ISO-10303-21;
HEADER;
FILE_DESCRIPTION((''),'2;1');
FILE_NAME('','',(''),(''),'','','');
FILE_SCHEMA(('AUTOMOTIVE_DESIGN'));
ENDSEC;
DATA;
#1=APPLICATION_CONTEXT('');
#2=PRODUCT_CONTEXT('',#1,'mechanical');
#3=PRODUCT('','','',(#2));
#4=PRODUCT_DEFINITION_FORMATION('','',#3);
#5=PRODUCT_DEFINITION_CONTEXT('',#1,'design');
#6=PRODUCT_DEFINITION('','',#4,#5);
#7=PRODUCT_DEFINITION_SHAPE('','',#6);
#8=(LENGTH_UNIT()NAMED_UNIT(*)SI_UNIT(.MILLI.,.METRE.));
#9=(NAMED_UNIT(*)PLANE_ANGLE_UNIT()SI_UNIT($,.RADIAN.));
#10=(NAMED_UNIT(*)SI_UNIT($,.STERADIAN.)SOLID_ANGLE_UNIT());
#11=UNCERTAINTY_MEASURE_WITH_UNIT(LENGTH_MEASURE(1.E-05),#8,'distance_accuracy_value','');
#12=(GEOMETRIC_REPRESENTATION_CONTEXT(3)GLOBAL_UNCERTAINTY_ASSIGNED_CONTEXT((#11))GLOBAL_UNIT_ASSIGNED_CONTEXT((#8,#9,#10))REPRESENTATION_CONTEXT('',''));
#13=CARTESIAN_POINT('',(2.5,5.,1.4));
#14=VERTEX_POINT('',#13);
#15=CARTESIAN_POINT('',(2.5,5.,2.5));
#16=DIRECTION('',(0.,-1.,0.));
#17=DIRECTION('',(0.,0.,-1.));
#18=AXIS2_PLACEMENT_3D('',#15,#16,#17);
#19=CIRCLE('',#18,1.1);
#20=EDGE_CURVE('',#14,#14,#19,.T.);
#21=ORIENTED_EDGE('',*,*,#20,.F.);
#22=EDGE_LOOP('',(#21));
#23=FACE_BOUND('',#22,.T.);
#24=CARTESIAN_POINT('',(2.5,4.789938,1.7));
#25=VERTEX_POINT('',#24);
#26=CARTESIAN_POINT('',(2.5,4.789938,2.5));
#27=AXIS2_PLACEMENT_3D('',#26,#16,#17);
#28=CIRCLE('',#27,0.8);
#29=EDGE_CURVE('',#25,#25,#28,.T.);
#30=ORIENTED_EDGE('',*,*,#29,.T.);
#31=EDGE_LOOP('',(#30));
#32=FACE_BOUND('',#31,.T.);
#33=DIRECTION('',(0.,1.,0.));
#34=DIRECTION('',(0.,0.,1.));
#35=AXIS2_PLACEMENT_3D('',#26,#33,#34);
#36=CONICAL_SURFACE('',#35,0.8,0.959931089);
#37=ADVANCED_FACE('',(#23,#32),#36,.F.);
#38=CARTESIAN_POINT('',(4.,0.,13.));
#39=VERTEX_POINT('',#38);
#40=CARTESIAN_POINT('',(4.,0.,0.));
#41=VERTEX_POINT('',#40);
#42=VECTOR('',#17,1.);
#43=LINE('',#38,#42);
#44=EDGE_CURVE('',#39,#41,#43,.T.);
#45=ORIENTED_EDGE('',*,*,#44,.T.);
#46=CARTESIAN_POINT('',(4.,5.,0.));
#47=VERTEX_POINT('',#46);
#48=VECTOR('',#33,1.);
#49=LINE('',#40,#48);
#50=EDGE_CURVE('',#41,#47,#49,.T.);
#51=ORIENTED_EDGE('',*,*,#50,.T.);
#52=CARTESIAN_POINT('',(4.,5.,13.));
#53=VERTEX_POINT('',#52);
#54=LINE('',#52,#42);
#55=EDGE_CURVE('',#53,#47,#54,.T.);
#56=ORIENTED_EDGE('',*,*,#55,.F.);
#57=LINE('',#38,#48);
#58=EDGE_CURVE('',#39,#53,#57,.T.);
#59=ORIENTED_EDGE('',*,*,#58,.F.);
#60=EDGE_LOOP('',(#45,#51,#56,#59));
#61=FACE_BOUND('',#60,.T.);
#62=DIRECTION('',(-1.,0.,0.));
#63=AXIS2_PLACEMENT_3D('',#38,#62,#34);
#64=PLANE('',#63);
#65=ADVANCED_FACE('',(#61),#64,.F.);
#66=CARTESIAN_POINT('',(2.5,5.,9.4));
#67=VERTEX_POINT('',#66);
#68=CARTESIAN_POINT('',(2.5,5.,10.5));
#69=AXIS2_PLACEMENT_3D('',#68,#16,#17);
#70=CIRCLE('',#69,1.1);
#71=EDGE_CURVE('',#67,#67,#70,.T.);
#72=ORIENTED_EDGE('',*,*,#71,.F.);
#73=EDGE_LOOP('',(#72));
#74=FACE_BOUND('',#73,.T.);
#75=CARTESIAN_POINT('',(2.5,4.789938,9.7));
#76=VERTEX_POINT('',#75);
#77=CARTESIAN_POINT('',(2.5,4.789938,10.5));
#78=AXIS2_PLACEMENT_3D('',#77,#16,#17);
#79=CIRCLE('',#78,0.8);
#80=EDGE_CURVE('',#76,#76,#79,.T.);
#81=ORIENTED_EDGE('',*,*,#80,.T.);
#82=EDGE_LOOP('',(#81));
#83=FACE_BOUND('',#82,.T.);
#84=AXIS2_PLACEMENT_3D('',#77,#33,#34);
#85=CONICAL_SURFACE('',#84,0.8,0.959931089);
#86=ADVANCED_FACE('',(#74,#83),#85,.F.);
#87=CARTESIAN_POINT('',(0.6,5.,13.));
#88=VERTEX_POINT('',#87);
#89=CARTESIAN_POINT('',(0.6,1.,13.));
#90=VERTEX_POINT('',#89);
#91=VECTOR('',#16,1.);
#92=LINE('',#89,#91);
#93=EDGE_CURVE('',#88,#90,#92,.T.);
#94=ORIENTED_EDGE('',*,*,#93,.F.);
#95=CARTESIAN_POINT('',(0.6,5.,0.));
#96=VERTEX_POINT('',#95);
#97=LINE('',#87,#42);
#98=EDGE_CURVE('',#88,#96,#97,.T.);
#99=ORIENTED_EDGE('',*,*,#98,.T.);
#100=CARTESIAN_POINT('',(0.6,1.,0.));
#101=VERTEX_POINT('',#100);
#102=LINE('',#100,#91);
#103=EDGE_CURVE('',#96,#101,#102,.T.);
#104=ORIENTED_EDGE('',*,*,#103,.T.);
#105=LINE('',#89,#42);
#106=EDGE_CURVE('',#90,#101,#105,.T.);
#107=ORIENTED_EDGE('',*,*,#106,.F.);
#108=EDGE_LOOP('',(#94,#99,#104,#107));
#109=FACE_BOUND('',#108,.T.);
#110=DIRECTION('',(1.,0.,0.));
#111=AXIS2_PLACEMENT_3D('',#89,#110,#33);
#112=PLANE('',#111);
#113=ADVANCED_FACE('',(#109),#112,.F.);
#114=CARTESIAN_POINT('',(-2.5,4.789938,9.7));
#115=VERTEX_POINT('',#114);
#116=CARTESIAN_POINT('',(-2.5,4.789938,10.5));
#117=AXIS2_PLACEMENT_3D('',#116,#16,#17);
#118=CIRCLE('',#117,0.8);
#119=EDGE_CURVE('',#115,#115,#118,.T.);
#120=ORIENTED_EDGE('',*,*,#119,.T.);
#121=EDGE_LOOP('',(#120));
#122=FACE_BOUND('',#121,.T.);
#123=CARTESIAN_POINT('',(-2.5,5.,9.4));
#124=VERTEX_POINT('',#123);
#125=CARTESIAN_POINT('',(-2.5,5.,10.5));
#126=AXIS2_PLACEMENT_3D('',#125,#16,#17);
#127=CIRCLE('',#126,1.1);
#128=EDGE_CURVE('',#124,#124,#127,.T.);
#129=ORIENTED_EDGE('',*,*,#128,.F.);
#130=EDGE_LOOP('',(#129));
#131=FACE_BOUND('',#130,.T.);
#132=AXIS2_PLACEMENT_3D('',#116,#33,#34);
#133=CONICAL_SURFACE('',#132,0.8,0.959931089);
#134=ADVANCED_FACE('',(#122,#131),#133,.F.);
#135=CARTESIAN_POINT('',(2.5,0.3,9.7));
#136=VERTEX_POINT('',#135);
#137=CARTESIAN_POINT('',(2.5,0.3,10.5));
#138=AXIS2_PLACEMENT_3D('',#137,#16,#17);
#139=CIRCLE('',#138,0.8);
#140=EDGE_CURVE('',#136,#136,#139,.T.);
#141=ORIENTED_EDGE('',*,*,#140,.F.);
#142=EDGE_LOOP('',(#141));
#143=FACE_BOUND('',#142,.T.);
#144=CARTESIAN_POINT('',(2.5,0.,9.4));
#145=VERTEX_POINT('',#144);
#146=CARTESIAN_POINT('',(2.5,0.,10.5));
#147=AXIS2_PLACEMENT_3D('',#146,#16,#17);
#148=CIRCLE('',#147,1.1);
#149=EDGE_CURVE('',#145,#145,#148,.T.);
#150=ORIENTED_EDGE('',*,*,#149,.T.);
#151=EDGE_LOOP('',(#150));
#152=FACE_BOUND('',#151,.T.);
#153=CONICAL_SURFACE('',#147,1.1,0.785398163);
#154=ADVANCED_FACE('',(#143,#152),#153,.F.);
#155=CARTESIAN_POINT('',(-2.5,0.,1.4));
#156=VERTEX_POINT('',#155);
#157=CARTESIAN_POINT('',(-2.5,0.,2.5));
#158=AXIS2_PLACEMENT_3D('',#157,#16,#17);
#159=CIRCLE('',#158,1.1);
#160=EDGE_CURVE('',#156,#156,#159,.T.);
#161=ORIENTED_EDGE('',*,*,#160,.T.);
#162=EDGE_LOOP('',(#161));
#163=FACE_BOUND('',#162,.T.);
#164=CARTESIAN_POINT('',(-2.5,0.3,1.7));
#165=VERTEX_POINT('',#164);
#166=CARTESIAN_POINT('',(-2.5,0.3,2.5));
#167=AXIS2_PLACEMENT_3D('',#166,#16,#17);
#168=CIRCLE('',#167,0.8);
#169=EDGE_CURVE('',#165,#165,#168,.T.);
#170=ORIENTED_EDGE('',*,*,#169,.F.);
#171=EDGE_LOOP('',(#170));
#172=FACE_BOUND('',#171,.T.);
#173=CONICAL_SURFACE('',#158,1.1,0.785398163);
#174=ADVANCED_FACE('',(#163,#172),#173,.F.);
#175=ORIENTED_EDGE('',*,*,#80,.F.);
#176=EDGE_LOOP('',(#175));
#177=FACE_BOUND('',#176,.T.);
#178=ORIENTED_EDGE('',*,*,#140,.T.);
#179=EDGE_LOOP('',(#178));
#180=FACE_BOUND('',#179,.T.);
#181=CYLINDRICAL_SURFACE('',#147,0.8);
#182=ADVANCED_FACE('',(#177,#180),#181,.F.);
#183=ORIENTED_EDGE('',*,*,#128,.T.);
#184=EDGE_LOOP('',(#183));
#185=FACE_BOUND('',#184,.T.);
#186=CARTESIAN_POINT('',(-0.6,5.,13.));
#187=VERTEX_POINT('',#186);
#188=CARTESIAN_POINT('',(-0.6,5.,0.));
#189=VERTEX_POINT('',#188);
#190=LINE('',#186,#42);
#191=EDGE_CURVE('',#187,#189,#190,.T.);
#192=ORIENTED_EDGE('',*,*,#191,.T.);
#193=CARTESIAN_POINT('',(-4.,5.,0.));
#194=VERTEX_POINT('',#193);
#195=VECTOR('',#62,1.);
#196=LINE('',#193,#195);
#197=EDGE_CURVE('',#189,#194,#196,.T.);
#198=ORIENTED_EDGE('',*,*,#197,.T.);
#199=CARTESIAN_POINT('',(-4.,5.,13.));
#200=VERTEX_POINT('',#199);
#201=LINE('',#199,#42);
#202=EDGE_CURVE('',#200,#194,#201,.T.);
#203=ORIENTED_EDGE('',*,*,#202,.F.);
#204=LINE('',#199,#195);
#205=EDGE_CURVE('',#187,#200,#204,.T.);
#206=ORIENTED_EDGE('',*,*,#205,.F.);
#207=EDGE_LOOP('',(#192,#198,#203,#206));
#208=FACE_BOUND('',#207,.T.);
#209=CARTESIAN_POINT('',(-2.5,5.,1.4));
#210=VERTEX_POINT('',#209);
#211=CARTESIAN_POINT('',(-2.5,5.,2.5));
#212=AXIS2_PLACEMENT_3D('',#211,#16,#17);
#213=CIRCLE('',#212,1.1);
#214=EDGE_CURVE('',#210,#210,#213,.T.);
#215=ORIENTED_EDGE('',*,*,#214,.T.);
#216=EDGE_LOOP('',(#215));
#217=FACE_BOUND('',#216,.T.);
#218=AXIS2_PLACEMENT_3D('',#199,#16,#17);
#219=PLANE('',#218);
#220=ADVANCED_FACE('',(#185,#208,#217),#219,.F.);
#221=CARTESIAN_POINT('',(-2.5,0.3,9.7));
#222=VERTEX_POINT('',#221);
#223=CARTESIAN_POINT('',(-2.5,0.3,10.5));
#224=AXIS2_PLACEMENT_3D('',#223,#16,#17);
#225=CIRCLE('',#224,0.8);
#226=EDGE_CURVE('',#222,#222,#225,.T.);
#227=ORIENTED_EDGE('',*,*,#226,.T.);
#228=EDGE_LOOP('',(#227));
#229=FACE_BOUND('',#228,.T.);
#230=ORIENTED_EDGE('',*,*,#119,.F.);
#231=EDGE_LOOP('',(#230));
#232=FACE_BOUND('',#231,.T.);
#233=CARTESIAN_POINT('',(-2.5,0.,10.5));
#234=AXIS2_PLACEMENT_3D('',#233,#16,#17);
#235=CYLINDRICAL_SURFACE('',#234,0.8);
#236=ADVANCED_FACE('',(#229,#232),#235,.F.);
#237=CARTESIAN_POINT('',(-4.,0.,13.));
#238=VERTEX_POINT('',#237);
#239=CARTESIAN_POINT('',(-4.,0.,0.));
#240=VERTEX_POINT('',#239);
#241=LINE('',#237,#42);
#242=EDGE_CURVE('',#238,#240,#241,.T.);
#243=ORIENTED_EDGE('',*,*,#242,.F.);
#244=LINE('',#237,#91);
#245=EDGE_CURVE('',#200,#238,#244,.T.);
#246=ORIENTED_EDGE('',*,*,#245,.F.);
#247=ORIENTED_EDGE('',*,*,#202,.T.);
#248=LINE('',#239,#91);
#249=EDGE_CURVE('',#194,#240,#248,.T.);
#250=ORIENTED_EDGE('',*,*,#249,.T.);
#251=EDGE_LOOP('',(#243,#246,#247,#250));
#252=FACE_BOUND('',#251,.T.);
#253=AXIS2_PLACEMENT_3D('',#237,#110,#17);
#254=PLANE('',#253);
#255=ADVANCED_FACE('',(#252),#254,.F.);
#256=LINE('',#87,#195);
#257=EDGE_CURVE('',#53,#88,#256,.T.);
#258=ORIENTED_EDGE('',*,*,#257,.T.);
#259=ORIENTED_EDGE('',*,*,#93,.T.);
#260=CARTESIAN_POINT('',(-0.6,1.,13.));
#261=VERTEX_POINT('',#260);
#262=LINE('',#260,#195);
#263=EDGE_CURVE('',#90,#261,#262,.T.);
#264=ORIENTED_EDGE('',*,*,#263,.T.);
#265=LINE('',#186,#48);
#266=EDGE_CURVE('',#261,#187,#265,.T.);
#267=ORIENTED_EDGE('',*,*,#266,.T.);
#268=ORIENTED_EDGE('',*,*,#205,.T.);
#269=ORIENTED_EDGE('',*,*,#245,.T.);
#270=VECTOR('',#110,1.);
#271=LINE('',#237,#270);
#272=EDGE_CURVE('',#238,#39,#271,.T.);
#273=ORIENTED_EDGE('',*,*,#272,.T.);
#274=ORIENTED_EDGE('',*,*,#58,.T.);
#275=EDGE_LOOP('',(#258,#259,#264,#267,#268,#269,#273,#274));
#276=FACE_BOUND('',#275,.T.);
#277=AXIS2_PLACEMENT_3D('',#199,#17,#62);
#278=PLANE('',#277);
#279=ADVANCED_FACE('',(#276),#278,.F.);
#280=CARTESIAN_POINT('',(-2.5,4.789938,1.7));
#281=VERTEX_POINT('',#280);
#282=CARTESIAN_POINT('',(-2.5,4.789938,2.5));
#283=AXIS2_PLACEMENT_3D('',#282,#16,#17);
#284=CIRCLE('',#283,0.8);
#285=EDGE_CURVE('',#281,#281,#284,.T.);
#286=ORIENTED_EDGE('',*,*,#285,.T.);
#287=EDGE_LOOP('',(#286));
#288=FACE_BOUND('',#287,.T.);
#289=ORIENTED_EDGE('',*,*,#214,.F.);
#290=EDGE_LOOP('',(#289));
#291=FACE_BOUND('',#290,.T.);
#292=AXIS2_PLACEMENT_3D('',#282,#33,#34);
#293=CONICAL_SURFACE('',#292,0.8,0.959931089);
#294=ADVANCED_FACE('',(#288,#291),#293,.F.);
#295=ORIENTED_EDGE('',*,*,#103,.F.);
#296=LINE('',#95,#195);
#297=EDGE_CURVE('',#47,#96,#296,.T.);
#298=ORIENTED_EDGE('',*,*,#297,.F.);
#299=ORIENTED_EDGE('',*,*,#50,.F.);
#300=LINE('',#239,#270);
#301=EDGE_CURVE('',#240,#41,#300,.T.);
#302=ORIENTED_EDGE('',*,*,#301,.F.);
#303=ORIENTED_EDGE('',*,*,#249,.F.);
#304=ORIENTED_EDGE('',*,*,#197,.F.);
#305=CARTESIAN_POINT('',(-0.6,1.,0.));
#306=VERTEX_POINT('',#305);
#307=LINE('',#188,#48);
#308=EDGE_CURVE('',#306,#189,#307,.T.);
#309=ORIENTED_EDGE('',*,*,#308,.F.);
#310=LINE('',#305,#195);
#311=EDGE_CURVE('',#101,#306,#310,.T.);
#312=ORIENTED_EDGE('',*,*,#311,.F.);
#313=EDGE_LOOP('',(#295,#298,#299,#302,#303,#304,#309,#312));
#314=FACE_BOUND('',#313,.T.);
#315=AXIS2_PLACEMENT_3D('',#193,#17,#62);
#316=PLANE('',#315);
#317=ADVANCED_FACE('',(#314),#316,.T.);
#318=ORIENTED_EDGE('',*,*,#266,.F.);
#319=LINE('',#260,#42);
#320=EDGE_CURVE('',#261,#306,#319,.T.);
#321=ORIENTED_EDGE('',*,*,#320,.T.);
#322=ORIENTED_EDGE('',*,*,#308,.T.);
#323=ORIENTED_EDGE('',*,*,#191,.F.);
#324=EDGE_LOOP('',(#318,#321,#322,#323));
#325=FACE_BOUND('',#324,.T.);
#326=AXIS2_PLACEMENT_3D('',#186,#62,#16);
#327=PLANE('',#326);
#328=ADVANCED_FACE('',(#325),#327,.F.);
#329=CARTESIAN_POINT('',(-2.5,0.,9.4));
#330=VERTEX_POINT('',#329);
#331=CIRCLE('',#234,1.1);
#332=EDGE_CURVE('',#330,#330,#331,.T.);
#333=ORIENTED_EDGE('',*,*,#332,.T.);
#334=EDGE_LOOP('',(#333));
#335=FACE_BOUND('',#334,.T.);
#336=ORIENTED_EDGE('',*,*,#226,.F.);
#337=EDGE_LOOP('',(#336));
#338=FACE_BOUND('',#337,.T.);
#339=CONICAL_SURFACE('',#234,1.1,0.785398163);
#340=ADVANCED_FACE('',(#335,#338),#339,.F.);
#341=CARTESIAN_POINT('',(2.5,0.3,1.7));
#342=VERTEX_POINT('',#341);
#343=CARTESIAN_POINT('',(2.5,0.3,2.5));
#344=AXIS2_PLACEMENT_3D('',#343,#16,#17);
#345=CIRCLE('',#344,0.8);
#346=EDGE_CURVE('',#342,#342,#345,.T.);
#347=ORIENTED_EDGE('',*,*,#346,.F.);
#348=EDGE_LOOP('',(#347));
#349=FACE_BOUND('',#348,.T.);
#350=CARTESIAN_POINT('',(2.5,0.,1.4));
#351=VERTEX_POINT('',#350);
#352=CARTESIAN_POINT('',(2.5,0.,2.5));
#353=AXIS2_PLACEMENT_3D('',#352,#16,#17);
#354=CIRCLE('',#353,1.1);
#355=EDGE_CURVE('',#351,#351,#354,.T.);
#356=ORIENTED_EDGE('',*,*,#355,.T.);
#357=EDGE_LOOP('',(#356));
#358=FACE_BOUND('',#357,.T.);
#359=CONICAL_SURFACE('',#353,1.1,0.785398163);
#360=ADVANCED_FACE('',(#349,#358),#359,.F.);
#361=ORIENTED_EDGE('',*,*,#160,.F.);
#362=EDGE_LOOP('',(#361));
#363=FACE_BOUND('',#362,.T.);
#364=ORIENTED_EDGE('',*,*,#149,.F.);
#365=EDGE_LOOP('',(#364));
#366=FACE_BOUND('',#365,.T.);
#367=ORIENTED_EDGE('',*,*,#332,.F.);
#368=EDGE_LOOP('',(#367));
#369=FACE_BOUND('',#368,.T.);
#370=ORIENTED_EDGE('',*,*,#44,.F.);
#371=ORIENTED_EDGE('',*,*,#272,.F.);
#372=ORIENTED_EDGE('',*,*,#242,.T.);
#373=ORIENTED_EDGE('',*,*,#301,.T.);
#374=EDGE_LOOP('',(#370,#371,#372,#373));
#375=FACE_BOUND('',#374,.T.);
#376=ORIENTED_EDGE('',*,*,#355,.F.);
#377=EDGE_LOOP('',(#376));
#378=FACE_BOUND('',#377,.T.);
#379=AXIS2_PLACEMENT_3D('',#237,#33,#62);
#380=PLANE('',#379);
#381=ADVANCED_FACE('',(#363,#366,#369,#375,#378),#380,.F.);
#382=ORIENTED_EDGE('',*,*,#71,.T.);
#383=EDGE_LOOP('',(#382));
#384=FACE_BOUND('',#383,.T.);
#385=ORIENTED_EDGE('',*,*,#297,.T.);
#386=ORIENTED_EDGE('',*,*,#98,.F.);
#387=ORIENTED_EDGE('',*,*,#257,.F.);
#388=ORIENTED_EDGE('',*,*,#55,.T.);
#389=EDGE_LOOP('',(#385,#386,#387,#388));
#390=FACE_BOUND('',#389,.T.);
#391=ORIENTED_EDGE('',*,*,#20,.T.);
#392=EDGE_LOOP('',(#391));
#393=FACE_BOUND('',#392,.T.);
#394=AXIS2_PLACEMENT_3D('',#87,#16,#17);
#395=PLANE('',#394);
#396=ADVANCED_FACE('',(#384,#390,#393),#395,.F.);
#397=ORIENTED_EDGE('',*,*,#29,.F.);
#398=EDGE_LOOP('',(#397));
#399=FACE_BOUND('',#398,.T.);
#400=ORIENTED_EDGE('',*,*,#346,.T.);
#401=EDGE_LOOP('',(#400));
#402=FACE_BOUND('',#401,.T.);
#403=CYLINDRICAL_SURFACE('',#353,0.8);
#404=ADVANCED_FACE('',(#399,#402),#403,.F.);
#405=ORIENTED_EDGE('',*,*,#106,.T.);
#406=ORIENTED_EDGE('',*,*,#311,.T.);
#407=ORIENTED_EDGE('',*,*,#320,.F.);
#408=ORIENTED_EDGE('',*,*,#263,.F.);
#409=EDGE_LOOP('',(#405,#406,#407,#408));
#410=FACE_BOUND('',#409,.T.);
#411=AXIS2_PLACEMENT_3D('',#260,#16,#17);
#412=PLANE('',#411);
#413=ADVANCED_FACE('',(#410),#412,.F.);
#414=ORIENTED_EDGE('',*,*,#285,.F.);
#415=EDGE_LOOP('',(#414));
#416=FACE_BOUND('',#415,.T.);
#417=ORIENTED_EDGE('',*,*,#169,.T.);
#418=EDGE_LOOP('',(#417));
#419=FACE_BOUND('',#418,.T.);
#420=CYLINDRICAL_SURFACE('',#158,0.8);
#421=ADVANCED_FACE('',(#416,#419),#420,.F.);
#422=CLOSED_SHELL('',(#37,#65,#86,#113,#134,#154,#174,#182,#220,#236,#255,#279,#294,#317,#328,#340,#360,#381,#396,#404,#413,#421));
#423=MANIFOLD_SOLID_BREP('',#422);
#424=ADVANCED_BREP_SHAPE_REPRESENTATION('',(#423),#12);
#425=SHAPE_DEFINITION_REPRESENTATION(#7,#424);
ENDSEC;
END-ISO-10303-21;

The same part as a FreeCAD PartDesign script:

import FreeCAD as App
import Part
import Sketcher
Q = App.Units.Quantity

doc = App.newDocument("Part")
body = doc.addObject("PartDesign::Body", "Body")

sketch1 = body.newObject("Sketcher::SketchObject", "Sketch")
sketch1.AttachmentSupport = (doc.getObject("XY_Plane"), [""])
sketch1.MapMode = "FlatFace"
sketch1.addGeometry([
    Part.LineSegment(App.Vector(-0.6, 5, 0), App.Vector(-4, 5, 0)),
    Part.LineSegment(App.Vector(-4, 5, 0), App.Vector(-4, 0, 0)),
    Part.LineSegment(App.Vector(-4, 0, 0), App.Vector(4, 0, 0)),
    Part.LineSegment(App.Vector(4, 0, 0), App.Vector(4, 5, 0)),
    Part.LineSegment(App.Vector(4, 5, 0), App.Vector(0.6, 5, 0)),
    Part.LineSegment(App.Vector(0.6, 5, 0), App.Vector(0.6, 1, 0)),
    Part.LineSegment(App.Vector(0.6, 1, 0), App.Vector(-0.6, 1, 0)),
    Part.LineSegment(App.Vector(-0.6, 1, 0), App.Vector(-0.6, 5, 0)),
], False)
sketch1.addConstraint([
    Sketcher.Constraint("Coincident", 0, 2, 1, 1),
    Sketcher.Constraint("Coincident", 1, 2, 2, 1),
    Sketcher.Constraint("Coincident", 2, 2, 3, 1),
    Sketcher.Constraint("Coincident", 3, 2, 4, 1),
    Sketcher.Constraint("Coincident", 4, 2, 5, 1),
    Sketcher.Constraint("Coincident", 5, 2, 6, 1),
    Sketcher.Constraint("Coincident", 6, 2, 7, 1),
    Sketcher.Constraint("Coincident", 7, 2, 0, 1),
    Sketcher.Constraint("Horizontal", 0),
    Sketcher.Constraint("Vertical", 1),
    Sketcher.Constraint("Horizontal", 2),
    Sketcher.Constraint("Vertical", 3),
    Sketcher.Constraint("Horizontal", 4),
    Sketcher.Constraint("Vertical", 5),
    Sketcher.Constraint("Horizontal", 6),
    Sketcher.Constraint("Vertical", 7),
    Sketcher.Constraint("Symmetric", 1, 2, 2, 2, -1, 1),
    Sketcher.Constraint("Symmetric", 4, 2, 7, 2, -2),
    Sketcher.Constraint("DistanceX", 2, 1, 2, 2, Q("8 mm")),
    Sketcher.Constraint("DistanceY", 1, 2, 1, 1, Q("5 mm")),
    Sketcher.Constraint("DistanceY", 5, 2, 5, 1, Q("4 mm")),
    Sketcher.Constraint("DistanceX", 0, 2, 0, 1, Q("3.4 mm")),
])
pad1 = body.newObject("PartDesign::Pad", "Pad")
pad1.Profile = sketch1
pad1.Length = 13

sketch2 = body.newObject("Sketcher::SketchObject", "Sketch001")
sketch2.AttachmentSupport = (doc.getObject("YZ_Plane"), [""])
sketch2.MapMode = "FlatFace"
sketch2.AttachmentOffset = App.Placement(App.Vector(0, 0, -2.5), App.Rotation())
sketch2.addGeometry([
    Part.LineSegment(App.Vector(5, 10.5, 0), App.Vector(0, 10.5, 0)),
    Part.LineSegment(App.Vector(0, 10.5, 0), App.Vector(0, 9.4, 0)),
    Part.LineSegment(App.Vector(0, 9.4, 0), App.Vector(0.3, 9.7, 0)),
    Part.LineSegment(App.Vector(0.3, 9.7, 0), App.Vector(4.789938, 9.7, 0)),
    Part.LineSegment(App.Vector(4.789938, 9.7, 0), App.Vector(5, 9.4, 0)),
    Part.LineSegment(App.Vector(5, 9.4, 0), App.Vector(5, 10.5, 0)),
], False)
sketch2.addGeometry(Part.LineSegment(App.Vector(0, 10.5, 0), App.Vector(5, 10.5, 0)), True)
sketch2.addConstraint([
    Sketcher.Constraint("Coincident", 0, 2, 1, 1),
    Sketcher.Constraint("Coincident", 1, 2, 2, 1),
    Sketcher.Constraint("Coincident", 2, 2, 3, 1),
    Sketcher.Constraint("Coincident", 3, 2, 4, 1),
    Sketcher.Constraint("Coincident", 4, 2, 5, 1),
    Sketcher.Constraint("Coincident", 5, 2, 0, 1),
    Sketcher.Constraint("Horizontal", 0),
    Sketcher.Constraint("Vertical", 1),
    Sketcher.Constraint("Horizontal", 3),
    Sketcher.Constraint("Vertical", 5),
    Sketcher.Constraint("Horizontal", 6),
    Sketcher.Constraint("Coincident", 6, 1, 0, 2),
    Sketcher.Constraint("PointOnObject", 0, 2, -2),
    Sketcher.Constraint("Horizontal", 1, 2, 4, 2),
    Sketcher.Constraint("Vertical", 4, 2, 6, 2),
    Sketcher.Constraint("DistanceX", 0, 2, 0, 1, Q("5 mm")),
    Sketcher.Constraint("Angle", 2, Q("45 deg")),
    Sketcher.Constraint("Angle", 4, Q("-55 deg")),
    Sketcher.Constraint("DistanceY", 1, 2, 1, 1, Q("1.1 mm")),
    Sketcher.Constraint("DistanceY", -1, 1, 0, 2, Q("10.5 mm")),
    Sketcher.Constraint("DistanceX", -1, 1, 2, 2, Q("0.3 mm")),
])
groove = body.newObject("PartDesign::Groove", "Groove")
groove.Profile = sketch2
groove.ReferenceAxis = (sketch2, ["Axis0"])
groove.Angle = 360
doc.recompute()

linearpattern = body.newObject("PartDesign::LinearPattern", "LinearPattern")
linearpattern.Originals = [groove]
linearpattern.Direction = (doc.getObject("X_Axis"), [""])
linearpattern.Mode = "offset"
linearpattern.Offset = 5
linearpattern.Occurrences = 2
body.Tip = linearpattern
doc.recompute()

datumline = body.newObject("PartDesign::Line", "DatumLine")
datumline.Placement = App.Placement(App.Vector(0, 0, 0), App.Rotation(App.Vector(0, 0, 1), App.Vector(0.52999894, 0, -0.847998304)))
linearpattern2 = body.newObject("PartDesign::LinearPattern", "LinearPattern001")
linearpattern2.Originals = [groove]
linearpattern2.Direction = (datumline, [""])
linearpattern2.Mode = "offset"
linearpattern2.Offset = 9.433981
linearpattern2.Occurrences = 2
body.Tip = linearpattern2
doc.recompute()

linearpattern3 = body.newObject("PartDesign::LinearPattern", "LinearPattern002")
linearpattern3.Originals = [groove]
linearpattern3.Direction = (doc.getObject("Z_Axis"), [""])
linearpattern3.Mode = "offset"
linearpattern3.Offset = 8
linearpattern3.Occurrences = 2
linearpattern3.Reversed = True
body.Tip = linearpattern3

doc.recompute()
